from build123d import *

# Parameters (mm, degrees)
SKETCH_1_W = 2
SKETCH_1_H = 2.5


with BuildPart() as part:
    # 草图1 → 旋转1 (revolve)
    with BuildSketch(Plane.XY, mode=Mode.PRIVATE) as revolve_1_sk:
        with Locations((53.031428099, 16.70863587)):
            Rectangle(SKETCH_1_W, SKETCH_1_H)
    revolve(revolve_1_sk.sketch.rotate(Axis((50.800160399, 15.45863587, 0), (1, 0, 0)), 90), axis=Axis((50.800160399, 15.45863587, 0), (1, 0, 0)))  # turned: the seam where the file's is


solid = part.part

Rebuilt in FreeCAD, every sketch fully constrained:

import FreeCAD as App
import Part
import Sketcher

V = App.Vector
Q = App.Units.Quantity

doc = App.newDocument("Part")
body = doc.addObject("PartDesign::Body", "Body")

# Sketch on XY plane
sketch1 = doc.addObject("Sketcher::SketchObject", "Sketch")
body.addObject(sketch1)
sketch1.AttachmentSupport = (doc.XY_Plane, [""])
sketch1.MapMode = "FlatFace"
sketch1.addGeometry([
    Part.LineSegment(V(52, 18, 0), V(52, 15.5, 0)),
    Part.LineSegment(V(52, 15.5, 0), V(54, 15.5, 0)),
    Part.LineSegment(V(54, 15.5, 0), V(54, 18, 0)),
    Part.LineSegment(V(54, 18, 0), V(52, 18, 0)),
], False)
sketch1.addGeometry(Part.LineSegment(V(52, 15.5, 0), V(54, 15.5, 0)), True)  # axis
sketch1.addConstraint([
    Sketcher.Constraint("Coincident", 0, 2, 1, 1),
    Sketcher.Constraint("Coincident", 1, 2, 2, 1),
    Sketcher.Constraint("Coincident", 2, 2, 3, 1),
    Sketcher.Constraint("Coincident", 3, 2, 0, 1),
    Sketcher.Constraint("Vertical", 0),
    Sketcher.Constraint("Horizontal", 1),
    Sketcher.Constraint("Vertical", 2),
    Sketcher.Constraint("Horizontal", 3),
    Sketcher.Constraint("Horizontal", 4),
    Sketcher.Constraint("Coincident", 4, 1, 0, 2),
    Sketcher.Constraint("Vertical", 2, 2, 4, 2),
    Sketcher.Constraint("DistanceX", 1, 1, 1, 2, Q("2 mm")),
    Sketcher.Constraint("DistanceY", 0, 2, 0, 1, Q("2.5 mm")),
    Sketcher.Constraint("DistanceX", -1, 1, 0, 2, Q("52.031428 mm")),
    Sketcher.Constraint("DistanceY", -1, 1, 0, 2, Q("15.458636 mm")),
])
revolution = doc.addObject("PartDesign::Revolution", "Revolution")
body.addObject(revolution)
revolution.Profile = sketch1
revolution.ReferenceAxis = (sketch1, ["Axis0"])
revolution.Angle = 360

doc.recompute()
